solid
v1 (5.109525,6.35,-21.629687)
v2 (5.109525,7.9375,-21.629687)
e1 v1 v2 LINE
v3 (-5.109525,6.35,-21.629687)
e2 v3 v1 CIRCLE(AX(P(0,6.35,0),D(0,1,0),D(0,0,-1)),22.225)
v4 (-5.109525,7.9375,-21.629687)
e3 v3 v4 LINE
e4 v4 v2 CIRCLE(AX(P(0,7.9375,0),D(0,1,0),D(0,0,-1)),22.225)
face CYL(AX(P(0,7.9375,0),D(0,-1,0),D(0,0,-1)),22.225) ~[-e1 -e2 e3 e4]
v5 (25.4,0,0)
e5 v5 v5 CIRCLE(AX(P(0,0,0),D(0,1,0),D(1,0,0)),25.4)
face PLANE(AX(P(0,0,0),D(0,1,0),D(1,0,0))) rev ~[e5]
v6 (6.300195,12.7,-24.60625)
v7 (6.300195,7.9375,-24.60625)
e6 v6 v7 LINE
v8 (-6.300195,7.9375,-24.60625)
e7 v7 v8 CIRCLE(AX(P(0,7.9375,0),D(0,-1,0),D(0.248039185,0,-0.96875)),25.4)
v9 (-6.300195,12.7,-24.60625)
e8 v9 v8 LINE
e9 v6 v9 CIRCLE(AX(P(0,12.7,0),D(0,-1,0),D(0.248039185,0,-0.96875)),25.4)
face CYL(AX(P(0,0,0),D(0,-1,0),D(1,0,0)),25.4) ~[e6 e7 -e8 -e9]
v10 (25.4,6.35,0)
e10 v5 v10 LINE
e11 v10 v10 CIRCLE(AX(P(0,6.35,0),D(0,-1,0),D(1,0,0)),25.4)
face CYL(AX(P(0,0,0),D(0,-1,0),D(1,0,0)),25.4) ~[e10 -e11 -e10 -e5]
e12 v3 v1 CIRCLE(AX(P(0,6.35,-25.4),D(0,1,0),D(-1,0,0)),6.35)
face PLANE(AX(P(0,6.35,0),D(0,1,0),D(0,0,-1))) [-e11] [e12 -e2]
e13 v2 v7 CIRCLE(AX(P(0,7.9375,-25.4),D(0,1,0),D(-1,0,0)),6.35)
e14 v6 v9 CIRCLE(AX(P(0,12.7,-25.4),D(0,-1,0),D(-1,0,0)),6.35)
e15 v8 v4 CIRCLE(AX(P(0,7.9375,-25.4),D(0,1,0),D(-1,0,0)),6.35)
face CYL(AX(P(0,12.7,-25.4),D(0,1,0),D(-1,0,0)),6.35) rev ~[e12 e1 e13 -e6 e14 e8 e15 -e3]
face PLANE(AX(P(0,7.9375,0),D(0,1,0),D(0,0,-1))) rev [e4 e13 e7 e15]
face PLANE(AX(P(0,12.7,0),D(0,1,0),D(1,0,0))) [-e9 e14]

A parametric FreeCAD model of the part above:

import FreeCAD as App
import Part
import Sketcher
Q = App.Units.Quantity


def add_polygon(sketch, points):
    """Adds a closed chain of lines whose ends are joined by coincident constraints."""
    first, n = sketch.GeometryCount, len(points)
    for a, b in zip(points, points[1:] + points[:1]):
        sketch.addGeometry(Part.LineSegment(App.Vector(*a, 0), App.Vector(*b, 0)), False)
    for i in range(n):
        sketch.addConstraint(Sketcher.Constraint("Coincident", first + i, 2, first + (i + 1) % n, 1))

doc = App.newDocument("Part")
body = doc.addObject("PartDesign::Body", "Body")

# Sketch on XZ plane
sketch1 = body.newObject("Sketcher::SketchObject", "Sketch")
sketch1.AttachmentSupport = (doc.getObject("XZ_Plane"), [""])
sketch1.MapMode = "FlatFace"
sketch1.addGeometry(Part.Circle(App.Vector(0, 0, 0), App.Vector(0, 0, 1), 25), False)
sketch1.addConstraint([
    Sketcher.Constraint("Coincident", 0, 3, -1, 1),
    Sketcher.Constraint("Diameter", 0, Q("2 in")),
])
pad1 = body.newObject("PartDesign::Pad", "Pad")
pad1.Profile = sketch1
pad1.Length = Q("0.5 in")
pad1.Reversed = True

# Sketch on XZ plane
sketch2 = body.newObject("Sketcher::SketchObject", "Sketch001")
sketch2.AttachmentSupport = (doc.getObject("XZ_Plane"), [""])
sketch2.MapMode = "FlatFace"
sketch2.AttachmentOffset = App.Placement(App.Vector(0, 0, -0.5 * 25.4), App.Rotation())
sketch2.addGeometry(Part.Circle(App.Vector(0, -25, 0), App.Vector(0, 0, 1), 6), False)
sketch2.addConstraint([
    Sketcher.Constraint("PointOnObject", 0, 3, -2),
    Sketcher.Constraint("Diameter", 0, Q("0.5 in")),
    Sketcher.Constraint("DistanceY", 0, 3, -1, 1, Q("1 in")),
])
pocket1 = body.newObject("PartDesign::Pocket", "Pocket")
pocket1.Profile = sketch2
pocket1.Length = Q("0.25 in")
pocket1.Reversed = True

# Sketch on YZ plane
sketch3 = body.newObject("Sketcher::SketchObject", "Sketch002")
sketch3.AttachmentSupport = (doc.getObject("YZ_Plane"), [""])
sketch3.MapMode = "FlatFace"
add_polygon(sketch3, [(7.9, -22.2), (6.3, -22.2), (6.3, -25.4), (7.9, -25.4)])  # lines 0-3
sketch3.addConstraint([
    Sketcher.Constraint("Horizontal", 0),
    Sketcher.Constraint("Vertical", 1),
    Sketcher.Constraint("Horizontal", 2),
    Sketcher.Constraint("Vertical", 3),
    Sketcher.Constraint("DistanceX", 0, 2, 0, 1, Q("0.0625 in")),
    Sketcher.Constraint("DistanceY", 1, 2, 1, 1, Q("0.125 in")),
    Sketcher.Constraint("DistanceY", 1, 2, -1, 1, Q("1 in")),
    Sketcher.Constraint("DistanceX", -1, 1, 0, 2, Q("0.25 in")),
])
groove = body.newObject("PartDesign::Groove", "Groove")
groove.Profile = sketch3
groove.ReferenceAxis = (sketch3, ["H_Axis"])
groove.Angle = 360

doc.recompute()
